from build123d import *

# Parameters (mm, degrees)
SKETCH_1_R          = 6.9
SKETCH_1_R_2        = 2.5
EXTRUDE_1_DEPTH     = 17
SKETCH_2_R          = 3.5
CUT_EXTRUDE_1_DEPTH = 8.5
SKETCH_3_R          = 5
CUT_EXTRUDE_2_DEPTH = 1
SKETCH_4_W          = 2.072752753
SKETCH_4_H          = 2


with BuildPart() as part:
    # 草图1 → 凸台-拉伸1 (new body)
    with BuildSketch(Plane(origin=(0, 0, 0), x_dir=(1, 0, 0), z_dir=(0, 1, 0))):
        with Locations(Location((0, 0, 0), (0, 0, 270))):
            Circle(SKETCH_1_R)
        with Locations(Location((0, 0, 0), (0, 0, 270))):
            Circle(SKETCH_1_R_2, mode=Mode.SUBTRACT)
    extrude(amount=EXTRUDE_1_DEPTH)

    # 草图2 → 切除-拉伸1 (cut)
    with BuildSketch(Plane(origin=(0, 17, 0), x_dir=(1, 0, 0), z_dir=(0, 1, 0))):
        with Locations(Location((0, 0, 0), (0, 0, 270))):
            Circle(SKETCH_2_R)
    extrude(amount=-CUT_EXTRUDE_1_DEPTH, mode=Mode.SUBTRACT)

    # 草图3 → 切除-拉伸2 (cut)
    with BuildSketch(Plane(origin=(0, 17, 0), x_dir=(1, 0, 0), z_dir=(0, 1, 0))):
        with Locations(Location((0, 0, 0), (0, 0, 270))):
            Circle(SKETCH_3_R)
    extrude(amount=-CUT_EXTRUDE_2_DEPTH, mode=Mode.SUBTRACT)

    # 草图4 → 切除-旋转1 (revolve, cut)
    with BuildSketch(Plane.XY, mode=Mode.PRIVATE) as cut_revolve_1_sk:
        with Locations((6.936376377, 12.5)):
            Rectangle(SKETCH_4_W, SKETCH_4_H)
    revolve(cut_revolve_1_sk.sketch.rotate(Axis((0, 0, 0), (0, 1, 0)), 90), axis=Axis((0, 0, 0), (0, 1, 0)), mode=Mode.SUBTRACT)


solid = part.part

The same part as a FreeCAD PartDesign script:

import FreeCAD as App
import Part
import Sketcher

V = App.Vector

doc = App.newDocument("Part")
body = doc.addObject("PartDesign::Body", "Body")

# Sketch on XZ plane
sketch1 = body.newObject("Sketcher::SketchObject", "Sketch")
sketch1.AttachmentSupport = (doc.getObject("XZ_Plane"), [""])
sketch1.MapMode = "FlatFace"
sketch1.addGeometry(Part.Circle(V(0, 0, 0), V(0, 0, 1), 6.9), False)
sketch1.addGeometry(Part.Circle(V(0, 0, 0), V(0, 0, 1), 2.5), False)
sketch1.addConstraint(Sketcher.Constraint("Coincident", 0, 3, -1, 1))
sketch1.addConstraint(Sketcher.Constraint("Coincident", 1, 3, -1, 1))
sketch1.addConstraint(Sketcher.Constraint("Diameter", 1, 5.0))
sketch1.addConstraint(Sketcher.Constraint("Diameter", 0, 13.8))
pad1 = body.newObject("PartDesign::Pad", "Pad")
pad1.Profile = sketch1
pad1.Length = 17
pad1.Reversed = True

# Sketch on XZ plane
sketch2 = body.newObject("Sketcher::SketchObject", "Sketch001")
sketch2.AttachmentSupport = (doc.getObject("XZ_Plane"), [""])
sketch2.MapMode = "FlatFace"
sketch2.AttachmentOffset = App.Placement(V(0, 0, -17), App.Rotation())
sketch2.addGeometry(Part.Circle(V(0, 0, 0), V(0, 0, 1), 3.5), False)
sketch2.addConstraint(Sketcher.Constraint("Coincident", 0, 3, -1, 1))
sketch2.addConstraint(Sketcher.Constraint("Diameter", 0, 7.0))
pocket1 = body.newObject("PartDesign::Pocket", "Pocket")
pocket1.Profile = sketch2
pocket1.Length = 8.5
pocket1.Reversed = True

# Sketch on XZ plane
sketch3 = body.newObject("Sketcher::SketchObject", "Sketch002")
sketch3.AttachmentSupport = (doc.getObject("XZ_Plane"), [""])
sketch3.MapMode = "FlatFace"
sketch3.AttachmentOffset = App.Placement(V(0, 0, -17), App.Rotation())
sketch3.addGeometry(Part.Circle(V(0, 0, 0), V(0, 0, 1), 5), False)
sketch3.addConstraint(Sketcher.Constraint("Coincident", 0, 3, -1, 1))
sketch3.addConstraint(Sketcher.Constraint("Diameter", 0, 10.0))
pocket2 = body.newObject("PartDesign::Pocket", "Pocket001")
pocket2.Profile = sketch3
pocket2.Length = 1
pocket2.Reversed = True

# Sketch on XY plane
sketch4 = body.newObject("Sketcher::SketchObject", "Sketch003")
sketch4.AttachmentSupport = (doc.getObject("XY_Plane"), [""])
sketch4.MapMode = "FlatFace"
sketch4.addGeometry(Part.LineSegment(V(5.9, 13.5, 0), V(5.9, 11.5, 0)), False)
sketch4.addGeometry(Part.LineSegment(V(5.9, 11.5, 0), V(8, 11.5, 0)), False)
sketch4.addGeometry(Part.LineSegment(V(8, 11.5, 0), V(8, 13.5, 0)), False)
sketch4.addGeometry(Part.LineSegment(V(8, 13.5, 0), V(5.9, 13.5, 0)), False)
sketch4.addConstraint(Sketcher.Constraint("Coincident", 0, 2, 1, 1))
sketch4.addConstraint(Sketcher.Constraint("Coincident", 1, 2, 2, 1))
sketch4.addConstraint(Sketcher.Constraint("Coincident", 2, 2, 3, 1))
sketch4.addConstraint(Sketcher.Constraint("Coincident", 3, 2, 0, 1))
sketch4.addConstraint(Sketcher.Constraint("Vertical", 0))
sketch4.addConstraint(Sketcher.Constraint("Horizontal", 1))
sketch4.addConstraint(Sketcher.Constraint("Vertical", 2))
sketch4.addConstraint(Sketcher.Constraint("Horizontal", 3))
sketch4.addConstraint(Sketcher.Constraint("DistanceY", 0, 2, 0, 1, 2.0))
sketch4.addConstraint(Sketcher.Constraint("DistanceX", -1, 1, 0, 2, 5.9))
sketch4.addConstraint(Sketcher.Constraint("DistanceY", -1, 1, 0, 2, 11.5))
sketch4.addConstraint(Sketcher.Constraint("DistanceX", 1, 1, 1, 2, 2.072753))
groove = body.newObject("PartDesign::Groove", "Groove")
groove.Profile = sketch4
groove.ReferenceAxis = (sketch4, ["V_Axis"])
groove.Angle = 360

doc.recompute()
